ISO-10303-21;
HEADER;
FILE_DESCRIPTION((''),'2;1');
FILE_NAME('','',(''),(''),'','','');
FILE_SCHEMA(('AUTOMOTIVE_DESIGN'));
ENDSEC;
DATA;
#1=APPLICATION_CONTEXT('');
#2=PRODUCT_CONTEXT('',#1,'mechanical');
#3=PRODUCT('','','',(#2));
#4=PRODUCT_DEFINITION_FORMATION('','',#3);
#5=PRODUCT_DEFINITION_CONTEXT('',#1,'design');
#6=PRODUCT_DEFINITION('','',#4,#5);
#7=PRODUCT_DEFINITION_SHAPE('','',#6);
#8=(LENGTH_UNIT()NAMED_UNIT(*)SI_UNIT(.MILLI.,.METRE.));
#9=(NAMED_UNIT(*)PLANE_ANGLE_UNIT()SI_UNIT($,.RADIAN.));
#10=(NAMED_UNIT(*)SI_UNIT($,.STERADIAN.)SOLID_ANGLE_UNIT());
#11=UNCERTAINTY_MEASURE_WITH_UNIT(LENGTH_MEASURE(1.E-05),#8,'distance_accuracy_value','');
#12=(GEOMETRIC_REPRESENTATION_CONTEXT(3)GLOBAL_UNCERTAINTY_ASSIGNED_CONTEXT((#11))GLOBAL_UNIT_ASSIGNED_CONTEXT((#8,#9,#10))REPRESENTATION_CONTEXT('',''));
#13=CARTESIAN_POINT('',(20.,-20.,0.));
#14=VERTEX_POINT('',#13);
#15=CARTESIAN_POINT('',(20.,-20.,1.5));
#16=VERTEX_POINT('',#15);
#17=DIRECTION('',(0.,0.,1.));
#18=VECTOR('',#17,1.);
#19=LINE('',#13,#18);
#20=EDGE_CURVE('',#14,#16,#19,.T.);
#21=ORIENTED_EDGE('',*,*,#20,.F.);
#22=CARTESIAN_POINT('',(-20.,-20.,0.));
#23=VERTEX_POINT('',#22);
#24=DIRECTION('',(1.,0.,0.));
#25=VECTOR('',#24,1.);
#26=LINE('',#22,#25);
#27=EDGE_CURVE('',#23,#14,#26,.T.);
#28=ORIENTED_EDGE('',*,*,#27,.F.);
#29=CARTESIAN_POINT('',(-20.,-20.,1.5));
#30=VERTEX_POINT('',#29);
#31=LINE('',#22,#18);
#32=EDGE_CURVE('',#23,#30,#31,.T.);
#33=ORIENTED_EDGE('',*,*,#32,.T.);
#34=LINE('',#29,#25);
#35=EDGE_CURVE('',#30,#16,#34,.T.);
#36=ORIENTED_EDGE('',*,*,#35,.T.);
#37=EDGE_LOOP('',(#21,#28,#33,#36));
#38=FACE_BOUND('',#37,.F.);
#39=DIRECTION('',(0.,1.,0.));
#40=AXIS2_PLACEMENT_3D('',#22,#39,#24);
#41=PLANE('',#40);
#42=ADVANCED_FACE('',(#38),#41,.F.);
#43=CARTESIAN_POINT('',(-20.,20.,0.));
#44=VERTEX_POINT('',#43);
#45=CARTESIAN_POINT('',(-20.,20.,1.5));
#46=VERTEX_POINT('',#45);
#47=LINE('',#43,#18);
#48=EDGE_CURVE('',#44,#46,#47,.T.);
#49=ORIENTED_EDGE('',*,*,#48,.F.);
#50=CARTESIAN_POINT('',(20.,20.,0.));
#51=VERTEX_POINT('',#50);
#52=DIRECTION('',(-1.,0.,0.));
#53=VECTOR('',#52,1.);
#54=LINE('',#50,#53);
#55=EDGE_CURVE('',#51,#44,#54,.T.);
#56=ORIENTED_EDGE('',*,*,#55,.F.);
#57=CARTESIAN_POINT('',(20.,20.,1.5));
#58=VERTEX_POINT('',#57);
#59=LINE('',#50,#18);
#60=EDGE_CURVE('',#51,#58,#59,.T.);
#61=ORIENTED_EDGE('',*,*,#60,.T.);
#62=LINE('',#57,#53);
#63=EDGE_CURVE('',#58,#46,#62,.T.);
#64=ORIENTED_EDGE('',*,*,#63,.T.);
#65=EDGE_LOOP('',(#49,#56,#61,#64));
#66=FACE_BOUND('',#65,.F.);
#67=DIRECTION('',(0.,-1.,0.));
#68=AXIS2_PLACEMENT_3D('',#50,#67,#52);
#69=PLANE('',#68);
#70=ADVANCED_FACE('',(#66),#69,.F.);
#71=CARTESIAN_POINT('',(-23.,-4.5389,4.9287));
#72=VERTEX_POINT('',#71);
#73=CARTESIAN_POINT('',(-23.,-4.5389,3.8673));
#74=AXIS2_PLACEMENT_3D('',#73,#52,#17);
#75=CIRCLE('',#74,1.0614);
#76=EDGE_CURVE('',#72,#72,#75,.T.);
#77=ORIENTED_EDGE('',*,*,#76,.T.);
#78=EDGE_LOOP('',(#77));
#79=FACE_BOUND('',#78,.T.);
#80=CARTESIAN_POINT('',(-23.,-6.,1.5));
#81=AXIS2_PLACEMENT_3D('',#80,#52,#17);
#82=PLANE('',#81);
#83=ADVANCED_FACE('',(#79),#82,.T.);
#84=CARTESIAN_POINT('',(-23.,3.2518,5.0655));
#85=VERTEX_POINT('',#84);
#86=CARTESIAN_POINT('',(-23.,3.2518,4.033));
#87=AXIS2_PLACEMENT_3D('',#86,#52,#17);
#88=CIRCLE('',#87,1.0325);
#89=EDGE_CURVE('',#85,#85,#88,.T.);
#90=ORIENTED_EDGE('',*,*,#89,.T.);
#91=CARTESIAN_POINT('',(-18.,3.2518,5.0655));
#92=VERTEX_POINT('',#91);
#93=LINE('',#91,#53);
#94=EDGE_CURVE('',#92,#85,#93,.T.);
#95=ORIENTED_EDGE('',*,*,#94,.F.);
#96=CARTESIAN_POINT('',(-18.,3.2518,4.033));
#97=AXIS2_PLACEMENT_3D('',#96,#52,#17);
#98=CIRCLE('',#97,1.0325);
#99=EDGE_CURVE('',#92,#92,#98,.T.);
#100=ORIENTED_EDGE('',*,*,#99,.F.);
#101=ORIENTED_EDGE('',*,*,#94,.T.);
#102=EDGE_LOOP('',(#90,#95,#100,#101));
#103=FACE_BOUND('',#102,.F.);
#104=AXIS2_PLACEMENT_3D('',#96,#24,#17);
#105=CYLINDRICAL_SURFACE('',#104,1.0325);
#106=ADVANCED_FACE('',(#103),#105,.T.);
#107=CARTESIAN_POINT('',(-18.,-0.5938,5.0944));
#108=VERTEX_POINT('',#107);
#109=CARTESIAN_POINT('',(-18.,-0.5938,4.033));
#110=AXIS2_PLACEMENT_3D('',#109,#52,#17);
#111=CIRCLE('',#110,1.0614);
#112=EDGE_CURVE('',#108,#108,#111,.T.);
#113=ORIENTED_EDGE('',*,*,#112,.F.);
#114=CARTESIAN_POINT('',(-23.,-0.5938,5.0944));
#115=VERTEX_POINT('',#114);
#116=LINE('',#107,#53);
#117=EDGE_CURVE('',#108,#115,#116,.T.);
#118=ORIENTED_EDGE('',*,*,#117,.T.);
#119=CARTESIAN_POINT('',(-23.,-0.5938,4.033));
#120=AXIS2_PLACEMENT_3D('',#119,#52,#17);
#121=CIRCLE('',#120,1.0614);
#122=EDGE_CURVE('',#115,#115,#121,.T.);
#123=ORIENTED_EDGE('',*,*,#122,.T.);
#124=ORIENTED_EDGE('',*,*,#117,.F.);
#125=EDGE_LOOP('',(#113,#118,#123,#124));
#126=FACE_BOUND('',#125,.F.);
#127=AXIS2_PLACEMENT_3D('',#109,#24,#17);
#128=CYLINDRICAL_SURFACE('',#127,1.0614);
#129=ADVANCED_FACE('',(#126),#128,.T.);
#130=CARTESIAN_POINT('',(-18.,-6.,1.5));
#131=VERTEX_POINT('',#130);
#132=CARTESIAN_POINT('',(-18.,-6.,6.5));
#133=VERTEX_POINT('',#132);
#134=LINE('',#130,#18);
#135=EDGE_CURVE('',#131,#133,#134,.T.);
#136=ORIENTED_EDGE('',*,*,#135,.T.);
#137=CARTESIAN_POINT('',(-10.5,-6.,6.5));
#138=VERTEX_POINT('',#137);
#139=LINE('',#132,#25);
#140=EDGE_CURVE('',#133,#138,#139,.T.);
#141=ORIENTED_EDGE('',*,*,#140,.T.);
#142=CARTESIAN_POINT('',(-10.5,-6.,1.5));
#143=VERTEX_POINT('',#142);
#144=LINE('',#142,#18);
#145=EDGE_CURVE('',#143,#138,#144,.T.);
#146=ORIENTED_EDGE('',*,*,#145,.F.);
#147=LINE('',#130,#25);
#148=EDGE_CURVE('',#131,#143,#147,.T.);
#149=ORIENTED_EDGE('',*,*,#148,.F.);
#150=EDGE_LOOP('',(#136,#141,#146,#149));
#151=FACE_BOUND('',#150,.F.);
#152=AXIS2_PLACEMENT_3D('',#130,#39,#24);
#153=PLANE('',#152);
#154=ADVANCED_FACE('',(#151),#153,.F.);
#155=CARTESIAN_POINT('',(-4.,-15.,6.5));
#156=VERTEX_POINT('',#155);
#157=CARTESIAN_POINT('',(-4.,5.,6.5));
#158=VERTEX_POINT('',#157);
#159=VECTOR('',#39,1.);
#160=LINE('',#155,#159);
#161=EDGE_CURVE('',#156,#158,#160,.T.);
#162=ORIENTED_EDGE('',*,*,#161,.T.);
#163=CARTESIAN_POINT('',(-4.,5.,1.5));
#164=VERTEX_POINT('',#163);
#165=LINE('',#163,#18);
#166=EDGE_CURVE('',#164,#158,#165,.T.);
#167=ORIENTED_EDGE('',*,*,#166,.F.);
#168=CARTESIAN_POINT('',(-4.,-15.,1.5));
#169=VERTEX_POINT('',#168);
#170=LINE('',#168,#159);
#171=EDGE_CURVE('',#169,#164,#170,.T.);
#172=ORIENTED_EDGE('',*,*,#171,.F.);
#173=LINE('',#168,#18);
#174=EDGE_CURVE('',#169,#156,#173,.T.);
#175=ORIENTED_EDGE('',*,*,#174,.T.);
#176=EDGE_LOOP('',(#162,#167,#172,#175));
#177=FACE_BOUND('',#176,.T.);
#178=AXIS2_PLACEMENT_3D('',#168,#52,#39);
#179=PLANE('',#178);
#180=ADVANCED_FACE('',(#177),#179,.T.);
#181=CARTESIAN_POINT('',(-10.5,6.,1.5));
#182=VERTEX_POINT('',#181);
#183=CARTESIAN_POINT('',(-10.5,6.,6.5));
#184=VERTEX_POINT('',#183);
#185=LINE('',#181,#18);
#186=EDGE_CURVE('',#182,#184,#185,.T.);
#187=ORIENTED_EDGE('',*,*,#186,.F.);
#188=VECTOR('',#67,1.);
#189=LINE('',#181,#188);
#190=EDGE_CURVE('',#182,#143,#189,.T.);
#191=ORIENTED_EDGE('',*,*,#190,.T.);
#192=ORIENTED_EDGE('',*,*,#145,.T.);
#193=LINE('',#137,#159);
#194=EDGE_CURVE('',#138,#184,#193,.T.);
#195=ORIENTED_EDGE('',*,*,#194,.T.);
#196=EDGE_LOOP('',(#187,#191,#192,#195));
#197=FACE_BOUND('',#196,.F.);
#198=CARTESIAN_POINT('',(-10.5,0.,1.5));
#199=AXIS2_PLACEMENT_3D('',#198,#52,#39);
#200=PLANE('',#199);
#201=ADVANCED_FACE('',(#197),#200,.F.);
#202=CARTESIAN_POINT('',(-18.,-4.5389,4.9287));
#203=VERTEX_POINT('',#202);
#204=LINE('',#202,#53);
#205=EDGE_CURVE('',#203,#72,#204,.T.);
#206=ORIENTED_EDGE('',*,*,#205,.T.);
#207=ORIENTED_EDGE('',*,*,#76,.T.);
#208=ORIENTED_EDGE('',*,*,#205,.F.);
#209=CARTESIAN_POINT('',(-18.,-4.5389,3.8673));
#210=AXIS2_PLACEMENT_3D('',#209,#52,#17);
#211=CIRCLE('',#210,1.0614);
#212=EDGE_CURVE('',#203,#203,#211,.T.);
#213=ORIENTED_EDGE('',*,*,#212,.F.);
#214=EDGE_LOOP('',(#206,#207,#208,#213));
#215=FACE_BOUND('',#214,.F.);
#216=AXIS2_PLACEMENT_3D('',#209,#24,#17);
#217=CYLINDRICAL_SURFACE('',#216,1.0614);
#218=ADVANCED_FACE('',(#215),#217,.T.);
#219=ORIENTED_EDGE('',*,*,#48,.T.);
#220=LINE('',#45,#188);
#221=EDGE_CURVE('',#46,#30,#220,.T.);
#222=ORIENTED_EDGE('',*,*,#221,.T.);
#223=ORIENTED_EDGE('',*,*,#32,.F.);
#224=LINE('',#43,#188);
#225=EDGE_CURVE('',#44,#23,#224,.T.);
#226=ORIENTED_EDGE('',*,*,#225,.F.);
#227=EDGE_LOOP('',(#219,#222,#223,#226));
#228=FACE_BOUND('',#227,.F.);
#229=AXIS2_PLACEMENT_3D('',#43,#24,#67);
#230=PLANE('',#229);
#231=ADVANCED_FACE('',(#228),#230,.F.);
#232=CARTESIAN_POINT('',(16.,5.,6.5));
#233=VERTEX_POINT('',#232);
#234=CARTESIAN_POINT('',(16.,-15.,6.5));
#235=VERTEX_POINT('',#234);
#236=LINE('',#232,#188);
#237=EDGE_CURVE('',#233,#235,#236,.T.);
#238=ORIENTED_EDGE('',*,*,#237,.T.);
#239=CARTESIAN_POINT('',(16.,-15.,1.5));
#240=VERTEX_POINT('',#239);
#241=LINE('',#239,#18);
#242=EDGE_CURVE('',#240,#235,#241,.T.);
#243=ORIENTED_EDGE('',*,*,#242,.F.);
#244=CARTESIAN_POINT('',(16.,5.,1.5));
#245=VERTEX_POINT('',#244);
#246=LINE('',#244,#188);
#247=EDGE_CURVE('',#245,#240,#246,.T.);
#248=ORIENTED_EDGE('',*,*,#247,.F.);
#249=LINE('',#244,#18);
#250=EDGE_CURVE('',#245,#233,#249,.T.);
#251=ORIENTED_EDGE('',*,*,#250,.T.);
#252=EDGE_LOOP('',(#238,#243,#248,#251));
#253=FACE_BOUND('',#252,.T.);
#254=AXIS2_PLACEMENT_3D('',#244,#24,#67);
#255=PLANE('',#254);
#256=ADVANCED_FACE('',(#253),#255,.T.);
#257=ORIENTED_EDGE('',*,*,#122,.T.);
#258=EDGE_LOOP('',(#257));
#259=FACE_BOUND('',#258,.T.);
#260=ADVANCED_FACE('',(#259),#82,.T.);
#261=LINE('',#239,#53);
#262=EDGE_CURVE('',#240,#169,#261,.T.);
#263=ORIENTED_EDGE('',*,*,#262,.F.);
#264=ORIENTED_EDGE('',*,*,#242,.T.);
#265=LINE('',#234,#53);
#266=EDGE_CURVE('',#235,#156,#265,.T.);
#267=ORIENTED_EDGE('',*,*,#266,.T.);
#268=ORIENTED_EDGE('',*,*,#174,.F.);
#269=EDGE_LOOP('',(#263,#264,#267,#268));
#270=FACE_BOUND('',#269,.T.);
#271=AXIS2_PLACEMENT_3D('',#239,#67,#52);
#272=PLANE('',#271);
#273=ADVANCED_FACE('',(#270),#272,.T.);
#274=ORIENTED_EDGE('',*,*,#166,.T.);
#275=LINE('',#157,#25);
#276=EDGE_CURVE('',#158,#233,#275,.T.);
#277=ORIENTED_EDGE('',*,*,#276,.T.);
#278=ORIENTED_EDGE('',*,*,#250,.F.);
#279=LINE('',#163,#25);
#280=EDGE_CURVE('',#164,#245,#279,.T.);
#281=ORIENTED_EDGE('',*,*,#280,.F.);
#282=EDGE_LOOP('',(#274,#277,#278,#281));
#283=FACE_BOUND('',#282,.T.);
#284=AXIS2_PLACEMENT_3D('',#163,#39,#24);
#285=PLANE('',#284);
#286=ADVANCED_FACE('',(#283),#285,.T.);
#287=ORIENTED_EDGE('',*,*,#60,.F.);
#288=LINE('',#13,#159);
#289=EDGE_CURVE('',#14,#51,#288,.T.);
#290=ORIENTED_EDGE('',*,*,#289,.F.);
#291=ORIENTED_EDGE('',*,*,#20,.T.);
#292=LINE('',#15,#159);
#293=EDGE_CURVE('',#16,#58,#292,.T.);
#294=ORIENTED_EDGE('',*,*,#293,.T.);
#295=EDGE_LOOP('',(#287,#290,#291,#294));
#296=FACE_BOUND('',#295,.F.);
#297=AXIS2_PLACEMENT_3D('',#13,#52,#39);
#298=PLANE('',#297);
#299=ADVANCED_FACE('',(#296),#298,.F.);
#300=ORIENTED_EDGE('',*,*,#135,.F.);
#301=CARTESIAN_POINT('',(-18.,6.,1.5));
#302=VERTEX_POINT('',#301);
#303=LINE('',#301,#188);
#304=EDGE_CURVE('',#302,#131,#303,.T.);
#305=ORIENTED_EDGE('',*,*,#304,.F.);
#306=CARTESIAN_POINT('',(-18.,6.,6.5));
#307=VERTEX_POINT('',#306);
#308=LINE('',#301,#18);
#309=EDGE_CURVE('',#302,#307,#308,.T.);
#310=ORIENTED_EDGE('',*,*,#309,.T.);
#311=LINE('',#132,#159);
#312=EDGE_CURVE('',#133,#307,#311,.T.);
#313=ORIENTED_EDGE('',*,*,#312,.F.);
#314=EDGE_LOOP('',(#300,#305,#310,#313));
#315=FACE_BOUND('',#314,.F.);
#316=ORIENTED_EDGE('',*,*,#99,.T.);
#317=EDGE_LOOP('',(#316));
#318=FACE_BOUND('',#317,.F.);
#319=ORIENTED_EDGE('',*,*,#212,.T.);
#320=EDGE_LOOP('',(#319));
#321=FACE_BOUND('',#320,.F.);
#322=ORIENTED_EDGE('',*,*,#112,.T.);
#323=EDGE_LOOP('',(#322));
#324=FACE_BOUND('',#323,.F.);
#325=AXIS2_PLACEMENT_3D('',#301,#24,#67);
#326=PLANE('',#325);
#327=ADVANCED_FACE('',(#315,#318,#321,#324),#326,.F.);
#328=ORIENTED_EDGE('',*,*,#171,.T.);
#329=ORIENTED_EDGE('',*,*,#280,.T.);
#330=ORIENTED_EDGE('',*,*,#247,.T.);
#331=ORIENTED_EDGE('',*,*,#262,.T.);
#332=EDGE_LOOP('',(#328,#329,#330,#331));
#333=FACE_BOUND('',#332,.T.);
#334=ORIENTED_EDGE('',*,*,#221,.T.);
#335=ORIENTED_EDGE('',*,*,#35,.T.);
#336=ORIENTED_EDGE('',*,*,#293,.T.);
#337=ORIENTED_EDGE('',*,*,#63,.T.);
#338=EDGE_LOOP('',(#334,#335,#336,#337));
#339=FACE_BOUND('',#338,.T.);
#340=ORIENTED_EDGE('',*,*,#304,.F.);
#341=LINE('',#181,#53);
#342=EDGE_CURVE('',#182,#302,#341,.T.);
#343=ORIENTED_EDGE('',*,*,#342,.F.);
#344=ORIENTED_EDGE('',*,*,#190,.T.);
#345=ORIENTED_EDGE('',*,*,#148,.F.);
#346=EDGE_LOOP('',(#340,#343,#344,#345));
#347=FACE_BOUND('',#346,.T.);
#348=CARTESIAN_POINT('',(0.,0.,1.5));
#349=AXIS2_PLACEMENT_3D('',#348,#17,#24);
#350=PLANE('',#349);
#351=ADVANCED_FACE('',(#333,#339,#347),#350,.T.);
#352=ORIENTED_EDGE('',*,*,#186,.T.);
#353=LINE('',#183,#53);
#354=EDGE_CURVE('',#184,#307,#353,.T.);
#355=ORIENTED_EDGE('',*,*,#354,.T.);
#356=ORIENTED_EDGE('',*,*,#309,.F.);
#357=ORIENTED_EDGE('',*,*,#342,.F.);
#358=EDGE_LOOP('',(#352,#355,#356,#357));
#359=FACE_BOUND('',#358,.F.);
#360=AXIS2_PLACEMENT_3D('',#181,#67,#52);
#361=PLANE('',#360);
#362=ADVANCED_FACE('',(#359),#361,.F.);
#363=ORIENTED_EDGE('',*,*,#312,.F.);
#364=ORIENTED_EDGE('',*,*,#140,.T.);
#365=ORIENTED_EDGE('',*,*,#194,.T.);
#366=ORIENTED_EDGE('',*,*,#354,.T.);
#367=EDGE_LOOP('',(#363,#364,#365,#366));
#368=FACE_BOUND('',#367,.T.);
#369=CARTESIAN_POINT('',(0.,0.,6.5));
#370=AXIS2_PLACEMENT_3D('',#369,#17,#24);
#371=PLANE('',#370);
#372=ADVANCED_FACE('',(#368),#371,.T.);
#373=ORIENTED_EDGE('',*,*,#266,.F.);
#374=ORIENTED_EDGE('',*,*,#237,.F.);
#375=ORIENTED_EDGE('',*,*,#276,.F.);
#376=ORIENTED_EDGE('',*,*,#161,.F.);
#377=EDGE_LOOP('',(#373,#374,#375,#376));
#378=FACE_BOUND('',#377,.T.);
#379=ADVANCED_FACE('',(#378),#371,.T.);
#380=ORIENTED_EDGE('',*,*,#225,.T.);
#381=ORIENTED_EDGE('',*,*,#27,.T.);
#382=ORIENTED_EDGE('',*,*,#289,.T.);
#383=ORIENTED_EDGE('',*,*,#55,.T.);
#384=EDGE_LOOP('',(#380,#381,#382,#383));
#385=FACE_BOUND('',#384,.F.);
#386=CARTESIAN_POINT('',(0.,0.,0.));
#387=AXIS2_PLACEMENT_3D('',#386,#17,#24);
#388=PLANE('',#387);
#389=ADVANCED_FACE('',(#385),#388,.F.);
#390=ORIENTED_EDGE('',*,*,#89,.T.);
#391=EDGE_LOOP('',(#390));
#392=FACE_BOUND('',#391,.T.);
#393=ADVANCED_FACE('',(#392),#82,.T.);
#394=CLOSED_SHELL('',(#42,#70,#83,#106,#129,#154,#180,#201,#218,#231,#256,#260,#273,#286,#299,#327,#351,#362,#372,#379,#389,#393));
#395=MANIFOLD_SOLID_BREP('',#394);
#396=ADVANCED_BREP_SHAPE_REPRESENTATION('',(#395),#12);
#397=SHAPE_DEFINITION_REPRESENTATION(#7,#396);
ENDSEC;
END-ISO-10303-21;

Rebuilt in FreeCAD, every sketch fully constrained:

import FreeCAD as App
import Part
import Sketcher
Q = App.Units.Quantity

doc = App.newDocument("Part")
params = doc.addObject("Spreadsheet::Sheet", "Params")
for row, (alias, value) in enumerate([
    ("sketch1_width", "40 mm"),
    ("pad1_length", "1.5 mm"),
    ("sketch2_height", "12 mm"),
    ("sketch2_width", "7.5 mm"),
    ("pad2_length", "5 mm"),
    ("sketch3_width", "20 mm"),
    ("pad3_length", "5 mm"),
    ("pad4_length", "5 mm"),
], start=1):
    params.set(f"A{row}", alias)
    params.set(f"B{row}", "=" + value)
    params.setAlias(f"B{row}", alias)

body = doc.addObject("PartDesign::Body", "Body")

# Sketch on XY plane
sketch1 = doc.addObject("Sketcher::SketchObject", "Sketch")
body.addObject(sketch1)
sketch1.AttachmentSupport = (doc.XY_Plane, [""])
sketch1.MapMode = "FlatFace"
sketch1.addGeometry([
    Part.LineSegment(App.Vector(-20, 20, 0), App.Vector(-20, -20, 0)),
    Part.LineSegment(App.Vector(-20, -20, 0), App.Vector(20, -20, 0)),
    Part.LineSegment(App.Vector(20, -20, 0), App.Vector(20, 20, 0)),
    Part.LineSegment(App.Vector(20, 20, 0), App.Vector(-20, 20, 0)),
], False)
sketch1.addConstraint([
    Sketcher.Constraint("Coincident", 0, 2, 1, 1),
    Sketcher.Constraint("Coincident", 1, 2, 2, 1),
    Sketcher.Constraint("Coincident", 2, 2, 3, 1),
    Sketcher.Constraint("Coincident", 3, 2, 0, 1),
    Sketcher.Constraint("Vertical", 0),
    Sketcher.Constraint("Horizontal", 1),
    Sketcher.Constraint("Vertical", 2),
    Sketcher.Constraint("Horizontal", 3),
    Sketcher.Constraint("Symmetric", 0, 2, 2, 2, -1, 1),
    Sketcher.Constraint("Equal", 3, 0),
    Sketcher.Constraint("DistanceX", 1, 1, 1, 2, Q("40 mm")),
])
sketch1.setExpression("Constraints[10]", "Params.sketch1_width")
pad1 = doc.addObject("PartDesign::Pad", "Pad")
body.addObject(pad1)
pad1.Profile = sketch1
pad1.setExpression("Length", "Params.pad1_length")

# Sketch on XY plane
sketch2 = doc.addObject("Sketcher::SketchObject", "Sketch001")
body.addObject(sketch2)
sketch2.AttachmentSupport = (doc.XY_Plane, [""])
sketch2.MapMode = "FlatFace"
sketch2.AttachmentOffset = App.Placement(App.Vector(0, 0, 1.5), App.Rotation())
sketch2.addGeometry([
    Part.LineSegment(App.Vector(-18, 6, 0), App.Vector(-18, -6, 0)),
    Part.LineSegment(App.Vector(-18, -6, 0), App.Vector(-10, -6, 0)),
    Part.LineSegment(App.Vector(-10, -6, 0), App.Vector(-10, 6, 0)),
    Part.LineSegment(App.Vector(-10, 6, 0), App.Vector(-18, 6, 0)),
], False)
sketch2.addConstraint([
    Sketcher.Constraint("Coincident", 0, 2, 1, 1),
    Sketcher.Constraint("Coincident", 1, 2, 2, 1),
    Sketcher.Constraint("Coincident", 2, 2, 3, 1),
    Sketcher.Constraint("Coincident", 3, 2, 0, 1),
    Sketcher.Constraint("Vertical", 0),
    Sketcher.Constraint("Horizontal", 1),
    Sketcher.Constraint("Vertical", 2),
    Sketcher.Constraint("Horizontal", 3),
    Sketcher.Constraint("DistanceY", 0, 2, 0, 1, Q("12 mm")),
    Sketcher.Constraint("DistanceX", 1, 1, 1, 2, Q("7.5 mm")),
    Sketcher.Constraint("DistanceX", 0, 2, -1, 1, Q("18 mm")),
    Sketcher.Constraint("DistanceY", 0, 2, -1, 1, Q("6 mm")),
])
sketch2.setExpression("Constraints[8]", "Params.sketch2_height")
sketch2.setExpression("Constraints[9]", "Params.sketch2_width")
pad2 = doc.addObject("PartDesign::Pad", "Pad001")
body.addObject(pad2)
pad2.Profile = sketch2
pad2.setExpression("Length", "Params.pad2_length")

# Sketch on XY plane
sketch3 = doc.addObject("Sketcher::SketchObject", "Sketch002")
body.addObject(sketch3)
sketch3.AttachmentSupport = (doc.XY_Plane, [""])
sketch3.MapMode = "FlatFace"
sketch3.AttachmentOffset = App.Placement(App.Vector(0, 0, 1.5), App.Rotation())
sketch3.addGeometry([
    Part.LineSegment(App.Vector(-4, -15, 0), App.Vector(16, -15, 0)),
    Part.LineSegment(App.Vector(16, -15, 0), App.Vector(16, 5, 0)),
    Part.LineSegment(App.Vector(16, 5, 0), App.Vector(-4, 5, 0)),
    Part.LineSegment(App.Vector(-4, 5, 0), App.Vector(-4, -15, 0)),
], False)
sketch3.addConstraint([
    Sketcher.Constraint("Coincident", 0, 2, 1, 1),
    Sketcher.Constraint("Coincident", 1, 2, 2, 1),
    Sketcher.Constraint("Coincident", 2, 2, 3, 1),
    Sketcher.Constraint("Coincident", 3, 2, 0, 1),
    Sketcher.Constraint("Horizontal", 0),
    Sketcher.Constraint("Vertical", 1),
    Sketcher.Constraint("Horizontal", 2),
    Sketcher.Constraint("Vertical", 3),
    Sketcher.Constraint("Equal", 2, 1),
    Sketcher.Constraint("DistanceX", 0, 1, 0, 2, Q("20 mm")),
    Sketcher.Constraint("DistanceY", -1, 1, 1, 2, Q("5 mm")),
    Sketcher.Constraint("DistanceX", 2, 2, -1, 1, Q("4 mm")),
])
sketch3.setExpression("Constraints[9]", "Params.sketch3_width")
pad3 = doc.addObject("PartDesign::Pad", "Pad002")
body.addObject(pad3)
pad3.Profile = sketch3
pad3.setExpression("Length", "Params.pad3_length")

# Sketch on YZ plane
sketch4 = doc.addObject("Sketcher::SketchObject", "Sketch003")
body.addObject(sketch4)
sketch4.AttachmentSupport = (doc.YZ_Plane, [""])
sketch4.MapMode = "FlatFace"
sketch4.AttachmentOffset = App.Placement(App.Vector(0, 0, -18), App.Rotation())
sketch4.addGeometry([
    Part.Circle(App.Vector(3.3, 4, 0), App.Vector(0, 0, 1), 1),
    Part.Circle(App.Vector(-0.6, 4, 0), App.Vector(0, 0, 1), 1.1),
    Part.Circle(App.Vector(-4.5, 3.9, 0), App.Vector(0, 0, 1), 1.1),
], False)
sketch4.addConstraint([
    Sketcher.Constraint("Equal", 1, 2),
    Sketcher.Constraint("Horizontal", 0, 3, 1, 3),
    Sketcher.Constraint("Diameter", 0, Q("2.065 mm")),
    Sketcher.Constraint("Diameter", 1, Q("2.1228 mm")),
    Sketcher.Constraint("DistanceY", -1, 1, 0, 3, Q("4.033 mm")),
    Sketcher.Constraint("DistanceX", 2, 3, -1, 1, Q("4.539 mm")),
    Sketcher.Constraint("DistanceX", 2, 3, 1, 3, Q("3.945 mm")),
    Sketcher.Constraint("DistanceX", -1, 1, 0, 3, Q("3.2518 mm")),
    Sketcher.Constraint("DistanceY", -1, 1, 2, 3, Q("3.8673 mm")),
])
pad4 = doc.addObject("PartDesign::Pad", "Pad003")
body.addObject(pad4)
pad4.Profile = sketch4
pad4.setExpression("Length", "Params.pad4_length")
pad4.Reversed = True

doc.recompute()
